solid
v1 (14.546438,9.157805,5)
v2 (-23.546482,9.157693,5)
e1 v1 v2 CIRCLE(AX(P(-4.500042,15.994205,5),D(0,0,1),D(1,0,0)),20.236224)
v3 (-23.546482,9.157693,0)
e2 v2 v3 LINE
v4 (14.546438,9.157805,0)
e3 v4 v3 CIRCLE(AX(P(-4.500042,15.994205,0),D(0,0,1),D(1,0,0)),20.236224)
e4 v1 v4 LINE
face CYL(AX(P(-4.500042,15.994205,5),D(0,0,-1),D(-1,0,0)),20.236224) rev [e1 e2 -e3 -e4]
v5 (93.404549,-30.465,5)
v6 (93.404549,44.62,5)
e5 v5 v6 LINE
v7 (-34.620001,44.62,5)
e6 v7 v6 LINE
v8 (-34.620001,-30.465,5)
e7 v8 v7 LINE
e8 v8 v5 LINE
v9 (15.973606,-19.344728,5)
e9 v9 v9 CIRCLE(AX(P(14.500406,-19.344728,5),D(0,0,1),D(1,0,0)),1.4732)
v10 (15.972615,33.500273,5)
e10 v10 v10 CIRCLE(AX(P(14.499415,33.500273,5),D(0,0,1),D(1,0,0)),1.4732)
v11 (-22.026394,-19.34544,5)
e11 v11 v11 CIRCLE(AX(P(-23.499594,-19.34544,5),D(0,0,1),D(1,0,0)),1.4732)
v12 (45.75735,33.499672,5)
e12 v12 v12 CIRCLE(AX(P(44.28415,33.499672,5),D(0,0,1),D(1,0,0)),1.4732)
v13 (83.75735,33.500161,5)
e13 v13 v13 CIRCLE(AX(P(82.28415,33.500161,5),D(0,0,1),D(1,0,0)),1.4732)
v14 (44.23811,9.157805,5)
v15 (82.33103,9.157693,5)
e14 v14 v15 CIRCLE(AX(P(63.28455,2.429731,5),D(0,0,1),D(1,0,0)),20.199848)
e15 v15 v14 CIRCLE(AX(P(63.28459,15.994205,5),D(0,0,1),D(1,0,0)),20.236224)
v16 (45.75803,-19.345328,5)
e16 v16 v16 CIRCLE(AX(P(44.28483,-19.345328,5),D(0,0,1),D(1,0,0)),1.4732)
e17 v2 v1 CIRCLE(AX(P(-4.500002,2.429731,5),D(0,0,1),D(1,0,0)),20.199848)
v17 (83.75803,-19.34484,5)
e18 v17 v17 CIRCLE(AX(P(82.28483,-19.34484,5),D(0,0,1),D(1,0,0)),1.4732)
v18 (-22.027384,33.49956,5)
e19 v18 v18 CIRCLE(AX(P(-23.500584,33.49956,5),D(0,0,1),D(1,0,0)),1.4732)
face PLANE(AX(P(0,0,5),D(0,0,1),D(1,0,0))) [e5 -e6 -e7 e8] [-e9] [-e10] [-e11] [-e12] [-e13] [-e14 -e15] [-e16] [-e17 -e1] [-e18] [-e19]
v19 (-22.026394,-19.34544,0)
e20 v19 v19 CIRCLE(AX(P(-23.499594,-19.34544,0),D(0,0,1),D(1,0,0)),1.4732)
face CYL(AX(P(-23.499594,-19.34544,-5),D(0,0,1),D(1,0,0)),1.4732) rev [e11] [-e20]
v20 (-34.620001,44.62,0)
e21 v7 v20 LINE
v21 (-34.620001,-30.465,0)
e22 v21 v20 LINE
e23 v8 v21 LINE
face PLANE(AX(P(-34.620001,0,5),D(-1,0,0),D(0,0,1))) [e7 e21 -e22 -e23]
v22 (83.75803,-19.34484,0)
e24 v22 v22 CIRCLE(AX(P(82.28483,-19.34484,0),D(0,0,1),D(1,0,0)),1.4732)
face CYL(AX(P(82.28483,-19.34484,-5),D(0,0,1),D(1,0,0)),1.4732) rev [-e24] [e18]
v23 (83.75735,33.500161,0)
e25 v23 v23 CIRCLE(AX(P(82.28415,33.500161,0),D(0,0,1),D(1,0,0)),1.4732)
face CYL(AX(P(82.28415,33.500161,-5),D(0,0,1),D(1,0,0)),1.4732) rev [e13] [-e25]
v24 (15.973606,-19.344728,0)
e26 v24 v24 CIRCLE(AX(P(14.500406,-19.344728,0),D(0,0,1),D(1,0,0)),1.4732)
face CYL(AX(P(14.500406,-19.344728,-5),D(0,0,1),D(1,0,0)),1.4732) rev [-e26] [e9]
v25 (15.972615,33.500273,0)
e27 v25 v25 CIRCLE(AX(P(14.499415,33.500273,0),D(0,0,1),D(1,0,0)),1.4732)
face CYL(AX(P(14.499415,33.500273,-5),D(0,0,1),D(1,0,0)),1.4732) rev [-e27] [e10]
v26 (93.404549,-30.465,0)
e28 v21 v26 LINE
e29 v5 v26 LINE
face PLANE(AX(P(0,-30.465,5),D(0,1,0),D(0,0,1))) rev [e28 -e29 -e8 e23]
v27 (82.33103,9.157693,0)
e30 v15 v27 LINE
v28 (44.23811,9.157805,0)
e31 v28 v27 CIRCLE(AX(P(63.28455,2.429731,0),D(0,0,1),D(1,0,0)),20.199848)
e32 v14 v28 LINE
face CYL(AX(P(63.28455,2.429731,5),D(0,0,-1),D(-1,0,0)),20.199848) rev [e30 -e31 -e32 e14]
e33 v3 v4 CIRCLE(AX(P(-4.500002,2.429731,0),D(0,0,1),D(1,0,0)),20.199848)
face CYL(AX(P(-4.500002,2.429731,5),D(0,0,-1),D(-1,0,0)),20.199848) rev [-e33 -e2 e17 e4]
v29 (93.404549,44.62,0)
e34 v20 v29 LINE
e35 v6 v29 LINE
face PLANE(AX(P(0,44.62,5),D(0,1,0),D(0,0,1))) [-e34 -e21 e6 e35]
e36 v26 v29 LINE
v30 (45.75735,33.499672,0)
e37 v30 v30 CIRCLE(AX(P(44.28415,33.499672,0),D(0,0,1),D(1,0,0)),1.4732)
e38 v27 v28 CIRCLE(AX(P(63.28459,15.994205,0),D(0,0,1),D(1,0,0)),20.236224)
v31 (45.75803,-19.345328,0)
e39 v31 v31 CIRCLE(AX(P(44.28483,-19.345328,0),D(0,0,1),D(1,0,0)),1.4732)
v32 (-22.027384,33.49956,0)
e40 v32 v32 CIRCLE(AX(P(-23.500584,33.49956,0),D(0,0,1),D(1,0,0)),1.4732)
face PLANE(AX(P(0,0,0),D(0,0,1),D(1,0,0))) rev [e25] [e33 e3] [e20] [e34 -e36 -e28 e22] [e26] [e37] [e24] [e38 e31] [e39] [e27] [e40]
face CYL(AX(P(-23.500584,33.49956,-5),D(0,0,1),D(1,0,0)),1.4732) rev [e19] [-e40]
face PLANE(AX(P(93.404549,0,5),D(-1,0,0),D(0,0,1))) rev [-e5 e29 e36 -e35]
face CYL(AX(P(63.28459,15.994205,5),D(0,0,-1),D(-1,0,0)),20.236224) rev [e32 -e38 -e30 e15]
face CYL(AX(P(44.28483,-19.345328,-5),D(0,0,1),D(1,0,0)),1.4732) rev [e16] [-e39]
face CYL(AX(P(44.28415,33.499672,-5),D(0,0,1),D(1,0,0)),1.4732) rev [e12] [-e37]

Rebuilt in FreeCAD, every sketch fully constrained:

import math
import FreeCAD as App
import Part
import Sketcher

V = App.Vector
Q = App.Units.Quantity


def add_polygon(sketch, points):
    """Adds a closed chain of lines whose ends are joined by coincident constraints."""
    first, n = sketch.GeometryCount, len(points)
    for a, b in zip(points, points[1:] + points[:1]):
        sketch.addGeometry(Part.LineSegment(App.Vector(*a, 0), App.Vector(*b, 0)), False)
    for i in range(n):
        sketch.addConstraint(Sketcher.Constraint("Coincident", first + i, 2, first + (i + 1) % n, 1))

doc = App.newDocument("Part")
params = doc.addObject("Spreadsheet::Sheet", "Params")
for row, (alias, value) in enumerate([
    ("pad1_length", "5 mm"),
    ("pocket1_length", "10 mm"),
], start=1):
    params.set(f"A{row}", alias)
    params.set(f"B{row}", "=" + value)
    params.setAlias(f"B{row}", alias)

body = doc.addObject("PartDesign::Body", "Body")

sketch1 = body.newObject("Sketcher::SketchObject", "Sketch")
sketch1.AttachmentSupport = (doc.getObject("XY_Plane"), [""])
sketch1.MapMode = "FlatFace"
add_polygon(sketch1, [(93.404549, -30.465), (93.404549, 44.62), (-34.620001, 44.62), (-34.620001, -30.465)])
sketch1.addGeometry(Part.ArcOfCircle(Part.Circle(V(63.28455, 2.429731, 0), V(0, 0, 1), 20.199848), math.radians(0), math.radians(19.455215)), False)
sketch1.addGeometry(Part.ArcOfCircle(Part.Circle(V(63.28455, 2.429731, 0), V(0, 0, 1), 20.199848), math.radians(160.544447), math.radians(360)), False)
sketch1.addGeometry(Part.ArcOfCircle(Part.Circle(V(63.28459, 15.994205, 0), V(0, 0, 1), 20.236224), math.radians(0), math.radians(199.74471)), False)
sketch1.addGeometry(Part.ArcOfCircle(Part.Circle(V(63.28459, 15.994205, 0), V(0, 0, 1), 20.236224), math.radians(-19.745048), math.radians(0)), False)
sketch1.addGeometry(Part.ArcOfCircle(Part.Circle(V(-4.500002, 2.429731, 0), V(0, 0, 1), 20.199848), math.radians(160.544785), math.radians(360)), False)
sketch1.addGeometry(Part.ArcOfCircle(Part.Circle(V(-4.500042, 15.994205, 0), V(0, 0, 1), 20.236224), math.radians(0), math.radians(199.745048)), False)
sketch1.addGeometry(Part.ArcOfCircle(Part.Circle(V(-4.500042, 15.994205, 0), V(0, 0, 1), 20.236224), math.radians(-19.74471), math.radians(0)), False)
sketch1.addGeometry(Part.ArcOfCircle(Part.Circle(V(-4.500002, 2.429731, 0), V(0, 0, 1), 20.199848), math.radians(0), math.radians(19.455553)), False)
sketch1.addConstraint(Sketcher.Constraint("Tangent", 4, 1, 5, 2))
sketch1.addConstraint(Sketcher.Constraint("Coincident", 5, 1, 6, 2))
sketch1.addConstraint(Sketcher.Constraint("Tangent", 6, 1, 7, 2))
sketch1.addConstraint(Sketcher.Constraint("Coincident", 7, 1, 4, 2))
sketch1.addConstraint(Sketcher.Constraint("Coincident", 8, 1, 9, 2))
sketch1.addConstraint(Sketcher.Constraint("Tangent", 9, 1, 10, 2))
sketch1.addConstraint(Sketcher.Constraint("Coincident", 10, 1, 11, 2))
sketch1.addConstraint(Sketcher.Constraint("Tangent", 11, 1, 8, 2))
sketch1.addConstraint(Sketcher.Constraint("Vertical", 0))
sketch1.addConstraint(Sketcher.Constraint("Horizontal", 1))
sketch1.addConstraint(Sketcher.Constraint("Vertical", 2))
sketch1.addConstraint(Sketcher.Constraint("Horizontal", 3))
sketch1.addConstraint(Sketcher.Constraint("Equal", 4, 5))
sketch1.addConstraint(Sketcher.Constraint("Equal", 6, 7))
sketch1.addConstraint(Sketcher.Constraint("Equal", 5, 8))
sketch1.addConstraint(Sketcher.Constraint("Equal", 7, 9))
sketch1.addConstraint(Sketcher.Constraint("Equal", 9, 10))
sketch1.addConstraint(Sketcher.Constraint("Equal", 8, 11))
sketch1.addConstraint(Sketcher.Constraint("Horizontal", 5, 3, 8, 3))
sketch1.addConstraint(Sketcher.Constraint("Horizontal", 7, 3, 9, 3))
sketch1.addConstraint(Sketcher.Constraint("Horizontal", 11, 3, 4, 1))
sketch1.addConstraint(Sketcher.Constraint("Horizontal", 10, 3, 6, 1))
sketch1.addConstraint(Sketcher.Constraint("Horizontal", 7, 1, 8, 1))
sketch1.addConstraint(Sketcher.Constraint("Horizontal", 6, 1, 9, 1))
sketch1.addConstraint(Sketcher.Constraint("Horizontal", 4, 1, 11, 1))
sketch1.addConstraint(Sketcher.Constraint("DistanceX", 8, 3, -1, 1, Q("4.500002 mm")))
sketch1.addConstraint(Sketcher.Constraint("DistanceY", 0, 1, 0, 2, Q("75.085001 mm")))
sketch1.addConstraint(Sketcher.Constraint("DistanceY", -1, 1, 0, 2, Q("44.62 mm")))
sketch1.addConstraint(Sketcher.Constraint("DistanceX", 1, 2, -1, 1, Q("34.620001 mm")))
sketch1.addConstraint(Sketcher.Constraint("Radius", 4, Q("20.199848 mm")))
sketch1.addConstraint(Sketcher.Constraint("DistanceX", 4, 3, 0, 2, Q("30.119999 mm")))
sketch1.addConstraint(Sketcher.Constraint("Radius", 6, Q("20.236224 mm")))
sketch1.addConstraint(Sketcher.Constraint("DistanceX", 1, 2, 1, 1, Q("128.024549 mm")))
sketch1.addConstraint(Sketcher.Constraint("DistanceY", 5, 1, 7, 3, Q("6.8364 mm")))
sketch1.addConstraint(Sketcher.Constraint("DistanceY", -1, 1, 4, 3, Q("2.429731 mm")))
sketch1.addConstraint(Sketcher.Constraint("DistanceX", -1, 1, 6, 3, Q("63.28459 mm")))
pad1 = body.newObject("PartDesign::Pad", "Pad")
pad1.Profile = sketch1
pad1.setExpression("Length", "Params.pad1_length")

sketch2 = body.newObject("Sketcher::SketchObject", "Sketch001")
sketch2.AttachmentSupport = (doc.getObject("XY_Plane"), [""])
sketch2.MapMode = "FlatFace"
sketch2.AttachmentOffset = App.Placement(V(0, 0, 5), App.Rotation())
sketch2.addGeometry(Part.Circle(V(-23.500584, 33.49956, 0), V(0, 0, 1), 1.4732), False)
sketch2.addGeometry(Part.Circle(V(14.499415, 33.500273, 0), V(0, 0, 1), 1.4732), False)
sketch2.addGeometry(Part.Circle(V(-23.499594, -19.34544, 0), V(0, 0, 1), 1.4732), False)
sketch2.addGeometry(Part.Circle(V(14.500406, -19.344728, 0), V(0, 0, 1), 1.4732), False)
sketch2.addGeometry(Part.Circle(V(44.28483, -19.345328, 0), V(0, 0, 1), 1.4732), False)
sketch2.addGeometry(Part.Circle(V(44.28415, 33.499672, 0), V(0, 0, 1), 1.4732), False)
sketch2.addGeometry(Part.Circle(V(82.28415, 33.500161, 0), V(0, 0, 1), 1.4732), False)
sketch2.addGeometry(Part.Circle(V(82.28483, -19.34484, 0), V(0, 0, 1), 1.4732), False)
sketch2.addConstraint(Sketcher.Constraint("Equal", 0, 1))
sketch2.addConstraint(Sketcher.Constraint("Equal", 1, 2))
sketch2.addConstraint(Sketcher.Constraint("Equal", 2, 3))
sketch2.addConstraint(Sketcher.Constraint("Equal", 3, 4))
sketch2.addConstraint(Sketcher.Constraint("Equal", 4, 5))
sketch2.addConstraint(Sketcher.Constraint("Equal", 5, 6))
sketch2.addConstraint(Sketcher.Constraint("Equal", 6, 7))
sketch2.addConstraint(Sketcher.Constraint("DistanceX", 0, 3, 1, 3, Q("38 mm")))
sketch2.addConstraint(Sketcher.Constraint("DistanceX", 2, 3, 3, 3, Q("38 mm")))
sketch2.addConstraint(Sketcher.Constraint("DistanceX", 5, 3, 6, 3, Q("38 mm")))
sketch2.addConstraint(Sketcher.Constraint("DistanceX", 4, 3, 7, 3, Q("38 mm")))
sketch2.addConstraint(Sketcher.Constraint("Diameter", 0, Q("2.9464 mm")))
sketch2.addConstraint(Sketcher.Constraint("DistanceY", 2, 3, 0, 3, Q("52.845 mm")))
sketch2.addConstraint(Sketcher.Constraint("DistanceY", 3, 3, 1, 3, Q("52.845 mm")))
sketch2.addConstraint(Sketcher.Constraint("DistanceY", 4, 3, 5, 3, Q("52.845001 mm")))
sketch2.addConstraint(Sketcher.Constraint("DistanceY", 7, 3, 6, 3, Q("52.845001 mm")))
sketch2.addConstraint(Sketcher.Constraint("DistanceY", 4, 3, 3, 3, Q("0.000601 mm")))
sketch2.addConstraint(Sketcher.Constraint("DistanceY", 0, 3, 6, 3, Q("0.000601 mm")))
sketch2.addConstraint(Sketcher.Constraint("DistanceY", -1, 1, 0, 3, Q("33.49956 mm")))
sketch2.addConstraint(Sketcher.Constraint("DistanceX", -1, 1, 4, 3, Q("44.28483 mm")))
sketch2.addConstraint(Sketcher.Constraint("DistanceY", 4, 3, -1, 1, Q("19.345328 mm")))
sketch2.addConstraint(Sketcher.Constraint("DistanceX", -1, 1, 5, 3, Q("44.28415 mm")))
sketch2.addConstraint(Sketcher.Constraint("DistanceX", 0, 3, 2, 3, Q("0.000991 mm")))
sketch2.addConstraint(Sketcher.Constraint("DistanceX", 0, 3, -1, 1, Q("23.500584 mm")))
pocket1 = body.newObject("PartDesign::Pocket", "Pocket")
pocket1.Profile = sketch2
pocket1.setExpression("Length", "Params.pocket1_length")

doc.recompute()
